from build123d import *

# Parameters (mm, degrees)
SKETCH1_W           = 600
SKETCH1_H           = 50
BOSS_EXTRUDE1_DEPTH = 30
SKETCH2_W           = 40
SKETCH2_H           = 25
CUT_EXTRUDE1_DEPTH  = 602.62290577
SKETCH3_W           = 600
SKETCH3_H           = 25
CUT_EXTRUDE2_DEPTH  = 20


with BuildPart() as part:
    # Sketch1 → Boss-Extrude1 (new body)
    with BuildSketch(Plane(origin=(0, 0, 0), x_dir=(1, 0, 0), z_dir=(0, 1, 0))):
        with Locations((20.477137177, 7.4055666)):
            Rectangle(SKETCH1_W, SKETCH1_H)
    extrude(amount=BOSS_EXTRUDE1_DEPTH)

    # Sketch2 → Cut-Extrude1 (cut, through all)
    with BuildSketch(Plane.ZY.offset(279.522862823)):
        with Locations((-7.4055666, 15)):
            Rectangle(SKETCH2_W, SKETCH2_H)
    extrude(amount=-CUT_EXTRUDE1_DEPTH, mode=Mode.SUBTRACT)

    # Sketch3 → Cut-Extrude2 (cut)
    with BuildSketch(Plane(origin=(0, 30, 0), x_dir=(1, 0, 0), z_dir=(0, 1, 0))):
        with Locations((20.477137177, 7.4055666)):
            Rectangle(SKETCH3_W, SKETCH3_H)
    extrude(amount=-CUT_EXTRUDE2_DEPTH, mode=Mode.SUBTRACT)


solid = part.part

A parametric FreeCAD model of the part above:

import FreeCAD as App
import Part
import Sketcher
from FreeCAD import Vector


def add_polygon(sketch, points):
    """Adds a closed chain of lines whose ends are joined by coincident constraints."""
    first, n = sketch.GeometryCount, len(points)
    for a, b in zip(points, points[1:] + points[:1]):
        sketch.addGeometry(Part.LineSegment(App.Vector(*a, 0), App.Vector(*b, 0)), False)
    for i in range(n):
        sketch.addConstraint(Sketcher.Constraint("Coincident", first + i, 2, first + (i + 1) % n, 1))

doc = App.newDocument("Part")
body = doc.addObject("PartDesign::Body", "Body")

# Sketch on XZ plane
sketch1 = doc.addObject("Sketcher::SketchObject", "Sketch")
body.addObject(sketch1)
sketch1.AttachmentSupport = (doc.XZ_Plane, [""])
sketch1.MapMode = "FlatFace"
add_polygon(sketch1, [(-280, -32), (-280, 18), (320, 18), (320, -32)])  # lines 0-3
sketch1.addConstraint(Sketcher.Constraint("Vertical", 0))
sketch1.addConstraint(Sketcher.Constraint("Horizontal", 1))
sketch1.addConstraint(Sketcher.Constraint("Vertical", 2))
sketch1.addConstraint(Sketcher.Constraint("Horizontal", 3))
sketch1.addConstraint(Sketcher.Constraint("DistanceX", 1, 1, 1, 2, 600.0))
sketch1.addConstraint(Sketcher.Constraint("DistanceY", 0, 1, 0, 2, 50.0))
sketch1.addConstraint(Sketcher.Constraint("DistanceX", 0, 2, -1, 1, 279.522863))
sketch1.addConstraint(Sketcher.Constraint("DistanceY", -1, 1, 0, 2, 17.594433))
pad1 = doc.addObject("PartDesign::Pad", "Pad")
body.addObject(pad1)
pad1.Profile = sketch1
pad1.Length = 30
pad1.Reversed = True

# Sketch on YZ plane
sketch2 = doc.addObject("Sketcher::SketchObject", "Sketch001")
body.addObject(sketch2)
sketch2.AttachmentSupport = (doc.YZ_Plane, [""])
sketch2.MapMode = "FlatFace"
sketch2.AttachmentOffset = App.Placement(Vector(0, 0, -279.522863), App.Rotation())
add_polygon(sketch2, [(28, -27), (2, -27), (2, 13), (28, 13)])  # lines 0-3
sketch2.addConstraint(Sketcher.Constraint("Horizontal", 0))
sketch2.addConstraint(Sketcher.Constraint("Vertical", 1))
sketch2.addConstraint(Sketcher.Constraint("Horizontal", 2))
sketch2.addConstraint(Sketcher.Constraint("Vertical", 3))
sketch2.addConstraint(Sketcher.Constraint("DistanceX", 0, 2, 0, 1, 25.0))
sketch2.addConstraint(Sketcher.Constraint("DistanceY", 1, 1, 1, 2, 40.0))
sketch2.addConstraint(Sketcher.Constraint("DistanceX", -1, 1, 0, 2, 2.5))
sketch2.addConstraint(Sketcher.Constraint("DistanceY", 0, 2, -1, 1, 27.405567))
pocket1 = doc.addObject("PartDesign::Pocket", "Pocket")
body.addObject(pocket1)
pocket1.Profile = sketch2
pocket1.Type = "ThroughAll"
pocket1.Reversed = True

# Sketch on XZ plane
sketch3 = doc.addObject("Sketcher::SketchObject", "Sketch002")
body.addObject(sketch3)
sketch3.AttachmentSupport = (doc.XZ_Plane, [""])
sketch3.MapMode = "FlatFace"
sketch3.AttachmentOffset = App.Placement(Vector(0, 0, -30), App.Rotation())
add_polygon(sketch3, [(-280, -20), (-280, 5), (320, 5), (320, -20)])  # lines 0-3
sketch3.addConstraint(Sketcher.Constraint("Vertical", 0))
sketch3.addConstraint(Sketcher.Constraint("Horizontal", 1))
sketch3.addConstraint(Sketcher.Constraint("Vertical", 2))
sketch3.addConstraint(Sketcher.Constraint("Horizontal", 3))
sketch3.addConstraint(Sketcher.Constraint("DistanceX", 1, 1, 1, 2, 600.0))
sketch3.addConstraint(Sketcher.Constraint("DistanceY", 0, 1, 0, 2, 25.0))
sketch3.addConstraint(Sketcher.Constraint("DistanceX", 0, 2, -1, 1, 279.522863))
sketch3.addConstraint(Sketcher.Constraint("DistanceY", -1, 1, 0, 2, 5.094433))
pocket2 = doc.addObject("PartDesign::Pocket", "Pocket001")
body.addObject(pocket2)
pocket2.Profile = sketch3
pocket2.Length = 20
pocket2.Reversed = True

doc.recompute()
